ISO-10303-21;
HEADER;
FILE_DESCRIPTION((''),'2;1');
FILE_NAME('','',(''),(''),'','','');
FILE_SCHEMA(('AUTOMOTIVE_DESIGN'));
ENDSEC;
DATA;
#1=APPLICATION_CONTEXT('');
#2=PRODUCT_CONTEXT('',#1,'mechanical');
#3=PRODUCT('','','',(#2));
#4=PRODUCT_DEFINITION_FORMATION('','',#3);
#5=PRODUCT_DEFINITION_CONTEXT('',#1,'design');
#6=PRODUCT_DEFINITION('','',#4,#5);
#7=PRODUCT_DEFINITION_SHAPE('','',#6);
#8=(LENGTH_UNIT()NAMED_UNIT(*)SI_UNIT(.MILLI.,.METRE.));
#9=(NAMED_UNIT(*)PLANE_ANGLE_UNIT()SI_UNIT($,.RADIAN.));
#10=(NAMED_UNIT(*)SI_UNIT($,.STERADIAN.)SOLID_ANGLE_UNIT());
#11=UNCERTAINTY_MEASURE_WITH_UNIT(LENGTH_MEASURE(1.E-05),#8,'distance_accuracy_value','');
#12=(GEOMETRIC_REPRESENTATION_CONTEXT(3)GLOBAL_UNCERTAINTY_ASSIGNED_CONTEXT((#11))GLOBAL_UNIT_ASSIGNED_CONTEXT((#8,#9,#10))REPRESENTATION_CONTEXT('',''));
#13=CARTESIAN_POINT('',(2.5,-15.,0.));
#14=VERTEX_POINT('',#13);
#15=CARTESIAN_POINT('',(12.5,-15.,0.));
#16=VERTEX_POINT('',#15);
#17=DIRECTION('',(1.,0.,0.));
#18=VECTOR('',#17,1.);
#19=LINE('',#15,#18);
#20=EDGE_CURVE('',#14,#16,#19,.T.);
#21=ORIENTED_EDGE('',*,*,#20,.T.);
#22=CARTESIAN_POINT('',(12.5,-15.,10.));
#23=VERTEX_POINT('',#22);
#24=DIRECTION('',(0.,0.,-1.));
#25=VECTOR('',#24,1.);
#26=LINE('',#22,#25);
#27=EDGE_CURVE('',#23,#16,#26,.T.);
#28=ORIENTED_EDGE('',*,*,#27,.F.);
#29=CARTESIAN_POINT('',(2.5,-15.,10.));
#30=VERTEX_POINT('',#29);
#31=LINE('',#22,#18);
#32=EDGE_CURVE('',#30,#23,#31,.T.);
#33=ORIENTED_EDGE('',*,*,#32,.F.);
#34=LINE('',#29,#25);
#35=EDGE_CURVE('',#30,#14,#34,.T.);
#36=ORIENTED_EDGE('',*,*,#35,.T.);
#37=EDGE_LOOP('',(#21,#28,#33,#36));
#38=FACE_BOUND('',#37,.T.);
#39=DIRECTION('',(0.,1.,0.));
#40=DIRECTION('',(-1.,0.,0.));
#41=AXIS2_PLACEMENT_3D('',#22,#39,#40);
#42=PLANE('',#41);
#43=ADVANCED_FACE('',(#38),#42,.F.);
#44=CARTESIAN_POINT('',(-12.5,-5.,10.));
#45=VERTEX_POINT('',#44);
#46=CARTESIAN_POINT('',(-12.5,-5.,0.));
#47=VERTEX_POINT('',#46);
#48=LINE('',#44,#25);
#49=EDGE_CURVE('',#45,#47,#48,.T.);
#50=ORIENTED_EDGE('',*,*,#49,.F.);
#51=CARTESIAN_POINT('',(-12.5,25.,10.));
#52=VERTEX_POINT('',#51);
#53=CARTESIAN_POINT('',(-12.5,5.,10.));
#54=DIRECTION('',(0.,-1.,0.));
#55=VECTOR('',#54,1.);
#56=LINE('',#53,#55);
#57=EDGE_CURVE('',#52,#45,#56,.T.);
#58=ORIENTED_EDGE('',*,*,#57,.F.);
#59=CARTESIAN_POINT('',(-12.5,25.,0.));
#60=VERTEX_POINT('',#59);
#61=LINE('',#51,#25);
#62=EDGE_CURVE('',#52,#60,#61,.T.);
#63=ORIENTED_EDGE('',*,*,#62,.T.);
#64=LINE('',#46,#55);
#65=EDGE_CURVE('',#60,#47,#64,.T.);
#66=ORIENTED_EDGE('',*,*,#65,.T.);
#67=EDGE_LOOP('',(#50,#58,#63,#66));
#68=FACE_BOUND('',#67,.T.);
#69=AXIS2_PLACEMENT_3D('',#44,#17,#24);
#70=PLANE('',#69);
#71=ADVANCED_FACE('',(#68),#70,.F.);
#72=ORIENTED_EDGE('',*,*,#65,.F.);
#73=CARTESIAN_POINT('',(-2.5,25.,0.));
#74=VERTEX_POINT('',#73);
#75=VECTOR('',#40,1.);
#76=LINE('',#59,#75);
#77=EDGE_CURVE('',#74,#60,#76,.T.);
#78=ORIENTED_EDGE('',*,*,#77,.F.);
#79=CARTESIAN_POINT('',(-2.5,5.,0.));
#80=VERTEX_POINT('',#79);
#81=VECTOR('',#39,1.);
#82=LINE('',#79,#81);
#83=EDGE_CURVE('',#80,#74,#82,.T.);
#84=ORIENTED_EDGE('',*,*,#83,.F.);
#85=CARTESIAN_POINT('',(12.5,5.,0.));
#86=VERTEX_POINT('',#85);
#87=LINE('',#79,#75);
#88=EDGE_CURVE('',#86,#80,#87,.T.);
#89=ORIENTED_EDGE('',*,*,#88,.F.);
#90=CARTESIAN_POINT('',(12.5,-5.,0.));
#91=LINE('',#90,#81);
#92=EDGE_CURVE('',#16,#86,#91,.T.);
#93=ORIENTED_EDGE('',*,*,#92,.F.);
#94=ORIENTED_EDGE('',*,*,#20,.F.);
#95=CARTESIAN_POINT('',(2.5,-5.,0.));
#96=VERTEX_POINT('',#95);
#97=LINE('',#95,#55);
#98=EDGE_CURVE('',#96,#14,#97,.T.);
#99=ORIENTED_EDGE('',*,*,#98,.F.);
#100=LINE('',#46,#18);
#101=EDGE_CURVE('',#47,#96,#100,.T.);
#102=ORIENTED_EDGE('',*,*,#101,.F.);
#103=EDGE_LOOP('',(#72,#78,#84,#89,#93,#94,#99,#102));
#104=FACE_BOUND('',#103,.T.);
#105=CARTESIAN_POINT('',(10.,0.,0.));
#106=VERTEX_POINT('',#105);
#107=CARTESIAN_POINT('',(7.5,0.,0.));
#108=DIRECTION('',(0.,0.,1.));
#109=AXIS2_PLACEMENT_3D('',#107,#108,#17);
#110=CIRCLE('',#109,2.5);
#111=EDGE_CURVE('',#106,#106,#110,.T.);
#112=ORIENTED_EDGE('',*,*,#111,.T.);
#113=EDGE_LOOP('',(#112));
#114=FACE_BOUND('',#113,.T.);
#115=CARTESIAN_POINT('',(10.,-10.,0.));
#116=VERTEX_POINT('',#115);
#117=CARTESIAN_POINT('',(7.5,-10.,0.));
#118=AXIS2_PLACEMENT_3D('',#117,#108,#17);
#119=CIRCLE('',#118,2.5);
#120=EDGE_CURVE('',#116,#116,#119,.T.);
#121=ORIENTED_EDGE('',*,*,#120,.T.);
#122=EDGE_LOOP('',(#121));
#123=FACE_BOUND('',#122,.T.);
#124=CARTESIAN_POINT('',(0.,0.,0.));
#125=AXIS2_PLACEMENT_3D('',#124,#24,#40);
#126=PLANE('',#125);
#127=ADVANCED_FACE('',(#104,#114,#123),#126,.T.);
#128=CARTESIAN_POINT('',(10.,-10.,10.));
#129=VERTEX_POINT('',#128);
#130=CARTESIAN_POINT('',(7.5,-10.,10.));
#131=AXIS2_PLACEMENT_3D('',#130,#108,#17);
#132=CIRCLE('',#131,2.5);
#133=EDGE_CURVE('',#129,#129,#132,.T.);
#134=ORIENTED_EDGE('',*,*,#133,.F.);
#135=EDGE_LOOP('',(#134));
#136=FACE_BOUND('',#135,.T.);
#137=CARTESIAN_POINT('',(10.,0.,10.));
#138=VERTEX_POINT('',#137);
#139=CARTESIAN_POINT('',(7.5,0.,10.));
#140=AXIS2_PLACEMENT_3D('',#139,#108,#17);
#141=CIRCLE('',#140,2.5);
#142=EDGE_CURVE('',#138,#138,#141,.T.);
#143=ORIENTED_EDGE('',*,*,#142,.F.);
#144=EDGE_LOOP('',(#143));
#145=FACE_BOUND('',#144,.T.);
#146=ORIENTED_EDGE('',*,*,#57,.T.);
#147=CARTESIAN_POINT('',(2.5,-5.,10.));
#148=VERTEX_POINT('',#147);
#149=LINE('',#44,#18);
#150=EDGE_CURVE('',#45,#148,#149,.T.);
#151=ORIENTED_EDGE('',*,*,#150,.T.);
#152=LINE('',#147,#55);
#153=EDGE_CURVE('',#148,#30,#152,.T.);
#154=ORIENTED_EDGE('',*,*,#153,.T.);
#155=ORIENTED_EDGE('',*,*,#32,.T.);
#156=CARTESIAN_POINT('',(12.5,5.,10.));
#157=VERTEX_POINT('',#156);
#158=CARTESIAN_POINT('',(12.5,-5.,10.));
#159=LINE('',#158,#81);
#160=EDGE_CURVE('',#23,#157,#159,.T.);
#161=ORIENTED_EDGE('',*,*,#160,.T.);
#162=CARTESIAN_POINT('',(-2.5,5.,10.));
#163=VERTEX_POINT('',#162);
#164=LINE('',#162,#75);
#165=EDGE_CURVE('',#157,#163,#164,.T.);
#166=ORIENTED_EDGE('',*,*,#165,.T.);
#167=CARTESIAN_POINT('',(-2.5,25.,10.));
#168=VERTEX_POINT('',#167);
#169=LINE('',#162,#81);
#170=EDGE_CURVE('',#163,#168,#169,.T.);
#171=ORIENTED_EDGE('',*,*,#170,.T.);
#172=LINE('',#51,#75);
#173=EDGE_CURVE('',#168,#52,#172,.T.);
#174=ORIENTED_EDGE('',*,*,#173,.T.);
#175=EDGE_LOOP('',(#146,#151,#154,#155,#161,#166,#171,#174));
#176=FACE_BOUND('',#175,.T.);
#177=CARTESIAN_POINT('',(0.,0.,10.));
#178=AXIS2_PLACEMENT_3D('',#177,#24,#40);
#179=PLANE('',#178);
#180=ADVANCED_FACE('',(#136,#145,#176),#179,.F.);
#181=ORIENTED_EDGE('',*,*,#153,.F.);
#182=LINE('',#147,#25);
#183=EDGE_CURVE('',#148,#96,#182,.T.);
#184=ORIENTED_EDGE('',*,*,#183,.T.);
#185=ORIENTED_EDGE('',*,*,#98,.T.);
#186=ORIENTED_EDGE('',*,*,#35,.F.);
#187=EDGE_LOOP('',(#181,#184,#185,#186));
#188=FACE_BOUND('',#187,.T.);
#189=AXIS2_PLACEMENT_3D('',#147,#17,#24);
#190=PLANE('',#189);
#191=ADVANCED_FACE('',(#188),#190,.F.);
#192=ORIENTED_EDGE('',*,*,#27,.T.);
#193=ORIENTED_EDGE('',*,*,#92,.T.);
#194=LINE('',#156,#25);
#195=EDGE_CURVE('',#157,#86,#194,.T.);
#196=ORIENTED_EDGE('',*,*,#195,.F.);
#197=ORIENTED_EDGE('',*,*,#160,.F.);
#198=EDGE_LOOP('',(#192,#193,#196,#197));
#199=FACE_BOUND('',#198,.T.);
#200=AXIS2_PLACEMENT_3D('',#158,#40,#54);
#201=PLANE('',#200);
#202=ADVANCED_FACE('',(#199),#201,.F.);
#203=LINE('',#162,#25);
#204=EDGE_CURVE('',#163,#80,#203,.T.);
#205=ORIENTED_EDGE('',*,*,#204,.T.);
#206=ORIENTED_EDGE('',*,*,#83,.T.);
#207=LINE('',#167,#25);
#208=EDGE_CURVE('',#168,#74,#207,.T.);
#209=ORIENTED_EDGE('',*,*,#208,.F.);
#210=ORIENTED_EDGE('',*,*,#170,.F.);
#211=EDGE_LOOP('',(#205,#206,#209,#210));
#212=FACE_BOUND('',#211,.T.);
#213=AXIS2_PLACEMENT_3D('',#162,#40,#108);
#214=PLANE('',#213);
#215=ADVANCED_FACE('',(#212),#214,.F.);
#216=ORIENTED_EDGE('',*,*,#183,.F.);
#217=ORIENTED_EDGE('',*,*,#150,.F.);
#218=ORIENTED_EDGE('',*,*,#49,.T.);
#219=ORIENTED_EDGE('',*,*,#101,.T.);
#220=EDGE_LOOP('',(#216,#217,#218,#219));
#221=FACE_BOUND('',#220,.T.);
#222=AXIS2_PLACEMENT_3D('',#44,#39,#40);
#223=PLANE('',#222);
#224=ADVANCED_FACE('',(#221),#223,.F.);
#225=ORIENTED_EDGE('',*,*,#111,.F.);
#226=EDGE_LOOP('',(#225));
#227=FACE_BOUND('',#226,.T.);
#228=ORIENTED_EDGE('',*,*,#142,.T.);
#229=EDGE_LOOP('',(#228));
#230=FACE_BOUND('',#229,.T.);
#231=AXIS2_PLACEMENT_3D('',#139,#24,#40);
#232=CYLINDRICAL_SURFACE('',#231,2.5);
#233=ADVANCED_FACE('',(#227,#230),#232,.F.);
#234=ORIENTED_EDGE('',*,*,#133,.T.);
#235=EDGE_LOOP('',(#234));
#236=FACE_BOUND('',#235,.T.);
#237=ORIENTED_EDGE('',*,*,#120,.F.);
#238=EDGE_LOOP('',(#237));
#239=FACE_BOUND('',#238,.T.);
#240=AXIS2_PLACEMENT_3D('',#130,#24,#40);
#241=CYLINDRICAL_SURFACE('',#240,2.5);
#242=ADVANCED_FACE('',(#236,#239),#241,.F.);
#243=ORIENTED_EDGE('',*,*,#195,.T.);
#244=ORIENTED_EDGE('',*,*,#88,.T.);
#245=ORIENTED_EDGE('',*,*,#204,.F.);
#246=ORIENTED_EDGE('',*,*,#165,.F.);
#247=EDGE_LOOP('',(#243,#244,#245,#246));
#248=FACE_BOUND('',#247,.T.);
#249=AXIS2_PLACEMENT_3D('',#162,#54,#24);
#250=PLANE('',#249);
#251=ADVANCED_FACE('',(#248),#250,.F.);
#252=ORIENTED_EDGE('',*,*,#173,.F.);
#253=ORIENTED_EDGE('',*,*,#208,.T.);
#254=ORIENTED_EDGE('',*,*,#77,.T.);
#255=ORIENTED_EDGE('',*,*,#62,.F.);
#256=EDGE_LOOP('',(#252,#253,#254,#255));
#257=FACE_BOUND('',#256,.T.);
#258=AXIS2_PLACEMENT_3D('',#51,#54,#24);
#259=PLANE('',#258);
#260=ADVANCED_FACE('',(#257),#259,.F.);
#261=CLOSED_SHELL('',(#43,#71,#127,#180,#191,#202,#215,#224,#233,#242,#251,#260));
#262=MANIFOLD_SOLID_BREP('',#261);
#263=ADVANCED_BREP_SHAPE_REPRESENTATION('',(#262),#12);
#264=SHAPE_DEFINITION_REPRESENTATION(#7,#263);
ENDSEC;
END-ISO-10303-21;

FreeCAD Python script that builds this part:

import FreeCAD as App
import Part
import Sketcher
from FreeCAD import Vector

doc = App.newDocument("Part")
body = doc.addObject("PartDesign::Body", "Body")

sketch1 = doc.addObject("Sketcher::SketchObject", "Sketch")
body.addObject(sketch1)
sketch1.AttachmentSupport = (doc.XY_Plane, [""])
sketch1.MapMode = "FlatFace"
sketch1.addGeometry(Part.LineSegment(Vector(-12.5, -5, 0), Vector(2.5, -5, 0)), False)
sketch1.addGeometry(Part.LineSegment(Vector(2.5, -5, 0), Vector(2.5, -15, 0)), False)
sketch1.addGeometry(Part.LineSegment(Vector(2.5, -15, 0), Vector(12.5, -15, 0)), False)
sketch1.addGeometry(Part.LineSegment(Vector(12.5, -15, 0), Vector(12.5, 5, 0)), False)
sketch1.addGeometry(Part.LineSegment(Vector(12.5, 5, 0), Vector(-2.5, 5, 0)), False)
sketch1.addGeometry(Part.LineSegment(Vector(-2.5, 5, 0), Vector(-2.5, 25, 0)), False)
sketch1.addGeometry(Part.LineSegment(Vector(-2.5, 25, 0), Vector(-12.5, 25, 0)), False)
sketch1.addGeometry(Part.LineSegment(Vector(-12.5, 25, 0), Vector(-12.5, -5, 0)), False)
sketch1.addGeometry(Part.Circle(Vector(7.5, -10, 0), Vector(0, 0, 1), 2.5), False)
sketch1.addGeometry(Part.Circle(Vector(7.5, 0, 0), Vector(0, 0, 1), 2.5), False)
sketch1.addConstraint(Sketcher.Constraint("Coincident", 0, 2, 1, 1))
sketch1.addConstraint(Sketcher.Constraint("Coincident", 1, 2, 2, 1))
sketch1.addConstraint(Sketcher.Constraint("Coincident", 2, 2, 3, 1))
sketch1.addConstraint(Sketcher.Constraint("Coincident", 3, 2, 4, 1))
sketch1.addConstraint(Sketcher.Constraint("Coincident", 4, 2, 5, 1))
sketch1.addConstraint(Sketcher.Constraint("Coincident", 5, 2, 6, 1))
sketch1.addConstraint(Sketcher.Constraint("Coincident", 6, 2, 7, 1))
sketch1.addConstraint(Sketcher.Constraint("Coincident", 7, 2, 0, 1))
sketch1.addConstraint(Sketcher.Constraint("Horizontal", 0))
sketch1.addConstraint(Sketcher.Constraint("Vertical", 1))
sketch1.addConstraint(Sketcher.Constraint("Horizontal", 2))
sketch1.addConstraint(Sketcher.Constraint("Vertical", 3))
sketch1.addConstraint(Sketcher.Constraint("Horizontal", 4))
sketch1.addConstraint(Sketcher.Constraint("Vertical", 5))
sketch1.addConstraint(Sketcher.Constraint("Horizontal", 6))
sketch1.addConstraint(Sketcher.Constraint("Vertical", 7))
sketch1.addConstraint(Sketcher.Constraint("Equal", 8, 9))
sketch1.addConstraint(Sketcher.Constraint("Symmetric", 0, 2, 4, 2, -1, 1))
sketch1.addConstraint(Sketcher.Constraint("PointOnObject", 9, 3, -1))
sketch1.addConstraint(Sketcher.Constraint("Vertical", 8, 3, 9, 3))
sketch1.addConstraint(Sketcher.Constraint("Equal", 0, 4))
sketch1.addConstraint(Sketcher.Constraint("Equal", 6, 1))
sketch1.addConstraint(Sketcher.Constraint("Equal", 3, 5))
sketch1.addConstraint(Sketcher.Constraint("Diameter", 8, 5.0))
sketch1.addConstraint(Sketcher.Constraint("DistanceX", 0, 1, 0, 2, 15.0))
sketch1.addConstraint(Sketcher.Constraint("DistanceX", 2, 1, 2, 2, 10.0))
sketch1.addConstraint(Sketcher.Constraint("DistanceY", 3, 1, 3, 2, 20.0))
sketch1.addConstraint(Sketcher.Constraint("DistanceY", 8, 3, -1, 1, 10.0))
sketch1.addConstraint(Sketcher.Constraint("DistanceX", 0, 2, 8, 3, 5.0))
pad1 = doc.addObject("PartDesign::Pad", "Pad")
body.addObject(pad1)
pad1.Profile = sketch1
pad1.Length = 10

doc.recompute()
